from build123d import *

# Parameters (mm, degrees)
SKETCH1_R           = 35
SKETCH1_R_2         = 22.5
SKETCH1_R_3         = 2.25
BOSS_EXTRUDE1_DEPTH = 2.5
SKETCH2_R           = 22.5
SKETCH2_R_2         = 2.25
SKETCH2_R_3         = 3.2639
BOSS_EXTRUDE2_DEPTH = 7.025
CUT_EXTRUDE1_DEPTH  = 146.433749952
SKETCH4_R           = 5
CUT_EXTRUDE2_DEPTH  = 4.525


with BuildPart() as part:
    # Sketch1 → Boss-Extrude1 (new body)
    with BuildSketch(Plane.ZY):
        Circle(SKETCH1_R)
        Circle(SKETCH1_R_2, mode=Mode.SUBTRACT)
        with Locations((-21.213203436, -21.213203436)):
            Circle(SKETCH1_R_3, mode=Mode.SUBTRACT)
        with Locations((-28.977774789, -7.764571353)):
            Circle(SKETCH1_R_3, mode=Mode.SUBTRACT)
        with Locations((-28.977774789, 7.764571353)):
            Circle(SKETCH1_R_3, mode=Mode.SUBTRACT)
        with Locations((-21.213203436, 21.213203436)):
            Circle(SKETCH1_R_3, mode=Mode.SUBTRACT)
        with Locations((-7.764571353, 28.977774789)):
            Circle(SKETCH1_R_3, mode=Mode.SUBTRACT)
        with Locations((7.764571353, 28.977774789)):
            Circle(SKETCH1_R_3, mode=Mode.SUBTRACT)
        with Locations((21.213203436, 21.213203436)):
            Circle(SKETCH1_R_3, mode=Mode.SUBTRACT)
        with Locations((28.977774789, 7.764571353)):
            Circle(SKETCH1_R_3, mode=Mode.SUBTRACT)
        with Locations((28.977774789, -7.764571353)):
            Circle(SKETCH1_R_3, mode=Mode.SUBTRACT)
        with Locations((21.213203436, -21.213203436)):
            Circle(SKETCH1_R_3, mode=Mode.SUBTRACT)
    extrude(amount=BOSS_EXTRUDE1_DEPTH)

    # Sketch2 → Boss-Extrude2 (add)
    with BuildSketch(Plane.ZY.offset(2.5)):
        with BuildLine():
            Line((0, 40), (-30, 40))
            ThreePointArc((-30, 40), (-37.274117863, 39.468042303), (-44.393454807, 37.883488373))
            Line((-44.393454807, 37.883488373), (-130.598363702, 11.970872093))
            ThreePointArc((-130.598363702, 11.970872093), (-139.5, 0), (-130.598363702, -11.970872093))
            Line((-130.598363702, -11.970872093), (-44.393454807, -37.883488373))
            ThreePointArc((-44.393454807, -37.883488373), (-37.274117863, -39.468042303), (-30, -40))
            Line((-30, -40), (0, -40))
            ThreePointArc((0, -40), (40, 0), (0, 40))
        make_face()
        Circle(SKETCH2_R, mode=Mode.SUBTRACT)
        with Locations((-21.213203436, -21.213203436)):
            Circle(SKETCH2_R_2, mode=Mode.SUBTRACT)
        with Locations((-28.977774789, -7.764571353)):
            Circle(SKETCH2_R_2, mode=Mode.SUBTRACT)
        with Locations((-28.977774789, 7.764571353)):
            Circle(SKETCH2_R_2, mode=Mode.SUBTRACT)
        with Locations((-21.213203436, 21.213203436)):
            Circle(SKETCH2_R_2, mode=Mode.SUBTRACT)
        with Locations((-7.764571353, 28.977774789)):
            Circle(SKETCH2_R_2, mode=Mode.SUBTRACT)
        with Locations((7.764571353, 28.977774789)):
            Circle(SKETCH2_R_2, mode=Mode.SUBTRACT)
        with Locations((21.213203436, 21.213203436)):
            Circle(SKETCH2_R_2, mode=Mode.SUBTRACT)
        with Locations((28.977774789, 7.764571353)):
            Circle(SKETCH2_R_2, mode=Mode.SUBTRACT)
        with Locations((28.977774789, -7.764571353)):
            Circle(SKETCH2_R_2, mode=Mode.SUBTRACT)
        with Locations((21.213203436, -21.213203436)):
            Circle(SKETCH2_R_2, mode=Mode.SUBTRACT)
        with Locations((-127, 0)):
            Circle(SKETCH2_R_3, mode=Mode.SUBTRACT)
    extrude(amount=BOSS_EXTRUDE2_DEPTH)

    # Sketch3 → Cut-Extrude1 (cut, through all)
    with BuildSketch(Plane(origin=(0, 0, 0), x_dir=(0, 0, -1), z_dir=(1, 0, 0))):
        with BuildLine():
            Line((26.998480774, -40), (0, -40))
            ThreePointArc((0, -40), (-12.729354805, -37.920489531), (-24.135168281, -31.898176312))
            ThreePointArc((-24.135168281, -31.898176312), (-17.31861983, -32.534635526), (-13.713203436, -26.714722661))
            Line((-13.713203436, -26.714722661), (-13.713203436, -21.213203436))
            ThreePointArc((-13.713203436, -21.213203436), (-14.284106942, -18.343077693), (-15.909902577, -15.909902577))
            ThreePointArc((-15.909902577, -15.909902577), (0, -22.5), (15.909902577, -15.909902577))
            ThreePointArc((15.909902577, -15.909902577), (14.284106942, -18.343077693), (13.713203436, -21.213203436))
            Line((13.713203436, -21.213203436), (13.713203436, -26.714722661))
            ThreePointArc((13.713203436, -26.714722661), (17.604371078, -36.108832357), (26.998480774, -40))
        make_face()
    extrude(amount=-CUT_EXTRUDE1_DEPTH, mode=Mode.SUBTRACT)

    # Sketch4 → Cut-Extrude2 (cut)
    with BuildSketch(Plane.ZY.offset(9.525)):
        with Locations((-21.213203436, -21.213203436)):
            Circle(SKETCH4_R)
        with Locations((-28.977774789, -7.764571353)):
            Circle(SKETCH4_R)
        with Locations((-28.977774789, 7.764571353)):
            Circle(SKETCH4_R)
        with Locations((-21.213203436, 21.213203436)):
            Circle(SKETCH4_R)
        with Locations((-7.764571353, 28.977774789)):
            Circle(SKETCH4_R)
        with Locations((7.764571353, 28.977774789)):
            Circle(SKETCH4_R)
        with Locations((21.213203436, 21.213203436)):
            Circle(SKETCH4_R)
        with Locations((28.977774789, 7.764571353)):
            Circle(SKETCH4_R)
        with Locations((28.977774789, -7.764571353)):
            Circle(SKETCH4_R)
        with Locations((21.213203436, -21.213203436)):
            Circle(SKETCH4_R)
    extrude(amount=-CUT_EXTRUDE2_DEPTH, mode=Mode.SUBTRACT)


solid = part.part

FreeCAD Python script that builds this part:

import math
import FreeCAD as App
import Part
import Sketcher

V = App.Vector
Q = App.Units.Quantity

doc = App.newDocument("Part")
body = doc.addObject("PartDesign::Body", "Body")

# Sketch on YZ plane
sketch1 = body.newObject("Sketcher::SketchObject", "Sketch")
sketch1.AttachmentSupport = (doc.getObject("YZ_Plane"), [""])
sketch1.MapMode = "FlatFace"
sketch1.addGeometry([
    Part.Circle(V(0, 0, 0), V(0, 0, 1), 35),  # 0
    Part.Circle(V(-21.2, -21.2, 0), V(0, 0, 1), 2.2),  # 1
    Part.Circle(V(-7.8, -29, 0), V(0, 0, 1), 2.2),  # 2
    Part.Circle(V(0, 0, 0), V(0, 0, 1), 22.5),  # 3
    Part.Circle(V(-21.2, 21.2, 0), V(0, 0, 1), 2.2),  # 4
    Part.Circle(V(-7.8, 29, 0), V(0, 0, 1), 2.2),  # 5
    Part.Circle(V(7.8, -29, 0), V(0, 0, 1), 2.2),  # 6
    Part.Circle(V(21.2, -21.2, 0), V(0, 0, 1), 2.2),  # 7
    Part.Circle(V(29, -7.8, 0), V(0, 0, 1), 2.2),  # 8
    Part.Circle(V(7.8, 29, 0), V(0, 0, 1), 2.2),  # 9
    Part.Circle(V(29, 7.8, 0), V(0, 0, 1), 2.2),  # 10
    Part.Circle(V(21.2, 21.2, 0), V(0, 0, 1), 2.2),  # 11
], False)
sketch1.addConstraint([
    Sketcher.Constraint("Coincident", 0, 3, -1, 1),
    Sketcher.Constraint("Coincident", 3, 3, -1, 1),
    Sketcher.Constraint("Equal", 1, 2),
    Sketcher.Constraint("Equal", 2, 4),
    Sketcher.Constraint("Equal", 4, 5),
    Sketcher.Constraint("Equal", 5, 6),
    Sketcher.Constraint("Equal", 6, 7),
    Sketcher.Constraint("Equal", 7, 8),
    Sketcher.Constraint("Equal", 8, 9),
    Sketcher.Constraint("Equal", 9, 10),
    Sketcher.Constraint("Equal", 10, 11),
    Sketcher.Constraint("Symmetric", 5, 3, 6, 3, -1, 1),
    Sketcher.Constraint("Symmetric", 4, 3, 7, 3, -1, 1),
    Sketcher.Constraint("Symmetric", 2, 3, 9, 3, -1, 1),
    Sketcher.Constraint("Symmetric", 1, 3, 11, 3, -1, 1),
    Sketcher.Constraint("Symmetric", 2, 3, 6, 3, -2),
    Sketcher.Constraint("Symmetric", 1, 3, 7, 3, -2),
    Sketcher.Constraint("Symmetric", 8, 3, 10, 3, -1),
    Sketcher.Constraint("Diameter", 0, Q("70 mm")),
    Sketcher.Constraint("Diameter", 3, Q("45 mm")),
    Sketcher.Constraint("Diameter", 1, Q("4.5 mm")),
    Sketcher.Constraint("DistanceX", 2, 3, -1, 1, Q("7.764571 mm")),
    Sketcher.Constraint("DistanceY", 8, 3, -1, 1, Q("7.764571 mm")),
    Sketcher.Constraint("DistanceY", 2, 3, 1, 3, Q("7.764571 mm")),
    Sketcher.Constraint("DistanceY", 2, 3, 4, 3, Q("50.190978 mm")),
    Sketcher.Constraint("DistanceX", 7, 3, 8, 3, Q("7.764571 mm")),
    Sketcher.Constraint("DistanceX", 1, 3, -1, 1, Q("21.213203 mm")),
])
pad1 = body.newObject("PartDesign::Pad", "Pad")
pad1.Profile = sketch1
pad1.Length = 2.5
pad1.Reversed = True

# Sketch on YZ plane
sketch2 = body.newObject("Sketcher::SketchObject", "Sketch001")
sketch2.AttachmentSupport = (doc.getObject("YZ_Plane"), [""])
sketch2.MapMode = "FlatFace"
sketch2.AttachmentOffset = App.Placement(V(0, 0, -2.5), App.Rotation())
sketch2.addGeometry([
    Part.LineSegment(V(40, 0, 0), V(40, -30, 0)),  # 0
    Part.ArcOfCircle(Part.Circle(V(-10, -30, 0), V(0, 0, 1), 50), math.radians(-16.73), math.radians(0)),  # 1
    Part.LineSegment(V(37.9, -44.4, 0), V(12, -130.6, 0)),  # 2
    Part.ArcOfCircle(Part.Circle(V(0, -127, 0), V(0, 0, 1), 12.5), math.radians(-163), math.radians(-17)),  # 3
    Part.LineSegment(V(-12, -130.6, 0), V(-37.9, -44.4, 0)),  # 4
    Part.ArcOfCircle(Part.Circle(V(10, -30, 0), V(0, 0, 1), 50), math.radians(-180), math.radians(-163.27)),  # 5
    Part.LineSegment(V(-40, -30, 0), V(-40, 0, 0)),  # 6
    Part.ArcOfCircle(Part.Circle(V(0, 0, 0), V(0, 0, 1), 40), math.radians(0), math.radians(180)),  # 7
    Part.Circle(V(0, -127, 0), V(0, 0, 1), 3.3),  # 8
    Part.Circle(V(-21.2, -21.2, 0), V(0, 0, 1), 2.2),  # 9
    Part.Circle(V(-21.2, 21.2, 0), V(0, 0, 1), 2.2),  # 10
    Part.Circle(V(-7.8, -29, 0), V(0, 0, 1), 2.2),  # 11
    Part.Circle(V(-7.8, 29, 0), V(0, 0, 1), 2.2),  # 12
    Part.Circle(V(0, 0, 0), V(0, 0, 1), 22.5),  # 13
    Part.Circle(V(7.8, -29, 0), V(0, 0, 1), 2.2),  # 14
    Part.Circle(V(7.8, 29, 0), V(0, 0, 1), 2.2),  # 15
    Part.Circle(V(21.2, -21.2, 0), V(0, 0, 1), 2.2),  # 16
    Part.Circle(V(21.2, 21.2, 0), V(0, 0, 1), 2.2),  # 17
    Part.Circle(V(29, -7.8, 0), V(0, 0, 1), 2.2),  # 18
    Part.Circle(V(29, 7.8, 0), V(0, 0, 1), 2.2),  # 19
], False)
sketch2.addConstraint([
    Sketcher.Constraint("Tangent", 0, 2, 1, 2),
    Sketcher.Constraint("Tangent", 1, 1, 2, 1),
    Sketcher.Constraint("Tangent", 2, 2, 3, 2),
    Sketcher.Constraint("Tangent", 3, 1, 4, 1),
    Sketcher.Constraint("Tangent", 4, 2, 5, 2),
    Sketcher.Constraint("Tangent", 5, 1, 6, 1),
    Sketcher.Constraint("Tangent", 6, 2, 7, 2),
    Sketcher.Constraint("Tangent", 7, 1, 0, 1),
    Sketcher.Constraint("Vertical", 0),
    Sketcher.Constraint("Vertical", 6),
    Sketcher.Constraint("Coincident", 7, 3, -1, 1),
    Sketcher.Constraint("Coincident", 13, 3, -1, 1),
    Sketcher.Constraint("Coincident", 8, 3, 3, 3),
    Sketcher.Constraint("Equal", 1, 5),
    Sketcher.Constraint("Equal", 9, 10),
    Sketcher.Constraint("Equal", 10, 11),
    Sketcher.Constraint("Equal", 11, 12),
    Sketcher.Constraint("Equal", 12, 14),
    Sketcher.Constraint("Equal", 14, 15),
    Sketcher.Constraint("Equal", 15, 16),
    Sketcher.Constraint("Equal", 16, 17),
    Sketcher.Constraint("Equal", 17, 18),
    Sketcher.Constraint("Equal", 18, 19),
    Sketcher.Constraint("Symmetric", 12, 3, 14, 3, -1, 1),
    Sketcher.Constraint("Symmetric", 11, 3, 15, 3, -1, 1),
    Sketcher.Constraint("Symmetric", 10, 3, 16, 3, -1, 1),
    Sketcher.Constraint("Symmetric", 9, 3, 17, 3, -1, 1),
    Sketcher.Constraint("Symmetric", 11, 3, 14, 3, -2),
    Sketcher.Constraint("Symmetric", 9, 3, 16, 3, -2),
    Sketcher.Constraint("Symmetric", 2, 2, 3, 1, -2),
    Sketcher.Constraint("Symmetric", 18, 3, 19, 3, -1),
    Sketcher.Constraint("Diameter", 13, Q("45 mm")),
    Sketcher.Constraint("Radius", 1, Q("50 mm")),
    Sketcher.Constraint("Radius", 7, Q("40 mm")),
    Sketcher.Constraint("Diameter", 9, Q("4.5 mm")),
    Sketcher.Constraint("Radius", 3, Q("12.5 mm")),
    Sketcher.Constraint("DistanceY", 0, 2, 0, 1, Q("30 mm")),
    Sketcher.Constraint("DistanceY", 3, 3, -1, 1, Q("127 mm")),
    Sketcher.Constraint("Diameter", 8, Q("6.5278 mm")),
    Sketcher.Constraint("DistanceX", 14, 3, 2, 2, Q("4.206301 mm")),
    Sketcher.Constraint("DistanceY", 18, 3, -1, 1, Q("7.764571 mm")),
    Sketcher.Constraint("DistanceY", 11, 3, 9, 3, Q("7.764571 mm")),
    Sketcher.Constraint("DistanceY", 11, 3, 10, 3, Q("50.190978 mm")),
    Sketcher.Constraint("DistanceX", 16, 3, 18, 3, Q("7.764571 mm")),
    Sketcher.Constraint("DistanceX", 9, 3, -1, 1, Q("21.213203 mm")),
])
pad2 = body.newObject("PartDesign::Pad", "Pad001")
pad2.Profile = sketch2
pad2.Length = 7.025
pad2.Reversed = True

# Sketch on YZ plane
sketch3 = body.newObject("Sketcher::SketchObject", "Sketch002")
sketch3.AttachmentSupport = (doc.getObject("YZ_Plane"), [""])
sketch3.MapMode = "FlatFace"
sketch3.addGeometry([
    Part.LineSegment(V(-40, 0, 0), V(-40, -27, 0)),  # 0
    Part.ArcOfCircle(Part.Circle(V(-27, -27, 0), V(0, 0, 1), 13), math.radians(90), math.radians(180)),  # 1
    Part.LineSegment(V(-27, -14, 0), V(-21, -14, 0)),  # 2
    Part.ArcOfCircle(Part.Circle(V(-21, -21, 0), V(0, 0, 1), 7), math.radians(45), math.radians(90)),  # 3
    Part.ArcOfCircle(Part.Circle(V(0, 0, 0), V(0, 0, 1), 23), math.radians(135), math.radians(225)),  # 4
    Part.ArcOfCircle(Part.Circle(V(-21, 21, 0), V(0, 0, 1), 7), math.radians(-90), math.radians(-45)),  # 5
    Part.LineSegment(V(-21, 14, 0), V(-27, 14, 0)),  # 6
    Part.ArcOfCircle(Part.Circle(V(-27, 20, 0), V(0, 0, 1), 6), math.radians(143), math.radians(270)),  # 7
    Part.ArcOfCircle(Part.Circle(V(0, 0, 0), V(0, 0, 1), 40), math.radians(143), math.radians(180)),  # 8
], False)
sketch3.addConstraint([
    Sketcher.Constraint("Tangent", 0, 2, 1, 2),
    Sketcher.Constraint("Tangent", 1, 1, 2, 1),
    Sketcher.Constraint("Tangent", 2, 2, 3, 2),
    Sketcher.Constraint("Tangent", 3, 1, 4, 2),
    Sketcher.Constraint("Tangent", 4, 1, 5, 2),
    Sketcher.Constraint("Tangent", 5, 1, 6, 1),
    Sketcher.Constraint("Tangent", 6, 2, 7, 2),
    Sketcher.Constraint("Tangent", 7, 1, 8, 1),
    Sketcher.Constraint("Tangent", 8, 2, 0, 1),
    Sketcher.Constraint("Vertical", 0),
    Sketcher.Constraint("Horizontal", 2),
    Sketcher.Constraint("Horizontal", 6),
    Sketcher.Constraint("Coincident", 4, 3, -1, 1),
    Sketcher.Constraint("Coincident", 8, 3, -1, 1),
    Sketcher.Constraint("Equal", 3, 5),
    Sketcher.Constraint("Symmetric", 1, 1, 6, 2, -1),
    Sketcher.Constraint("Radius", 8, Q("40 mm")),
    Sketcher.Constraint("Radius", 3, Q("7.5 mm")),
    Sketcher.Constraint("Radius", 4, Q("22.5 mm")),
    Sketcher.Constraint("Radius", 7, Q("6.5 mm")),
    Sketcher.Constraint("Radius", 1, Q("13.285277 mm")),
])
pocket1 = body.newObject("PartDesign::Pocket", "Pocket")
pocket1.Profile = sketch3
pocket1.Type = "ThroughAll"

# Sketch on YZ plane
sketch4 = body.newObject("Sketcher::SketchObject", "Sketch003")
sketch4.AttachmentSupport = (doc.getObject("YZ_Plane"), [""])
sketch4.MapMode = "FlatFace"
sketch4.AttachmentOffset = App.Placement(V(0, 0, -9.525), App.Rotation())
sketch4.addGeometry([
    Part.Circle(V(-21, -21, 0), V(0, 0, 1), 5),  # 0
    Part.Circle(V(-8, -29, 0), V(0, 0, 1), 5),  # 1
    Part.Circle(V(8, -29, 0), V(0, 0, 1), 5),  # 2
    Part.Circle(V(21, -21, 0), V(0, 0, 1), 5),  # 3
    Part.Circle(V(29, -8, 0), V(0, 0, 1), 5),  # 4
    Part.Circle(V(29, 8, 0), V(0, 0, 1), 5),  # 5
    Part.Circle(V(21, 21, 0), V(0, 0, 1), 5),  # 6
    Part.Circle(V(8, 29, 0), V(0, 0, 1), 5),  # 7
    Part.Circle(V(-8, 29, 0), V(0, 0, 1), 5),  # 8
    Part.Circle(V(-21, 21, 0), V(0, 0, 1), 5),  # 9
], False)
sketch4.addConstraint([
    Sketcher.Constraint("Equal", 0, 1),
    Sketcher.Constraint("Equal", 1, 2),
    Sketcher.Constraint("Equal", 2, 3),
    Sketcher.Constraint("Equal", 3, 4),
    Sketcher.Constraint("Equal", 4, 5),
    Sketcher.Constraint("Equal", 5, 6),
    Sketcher.Constraint("Equal", 6, 7),
    Sketcher.Constraint("Equal", 7, 8),
    Sketcher.Constraint("Equal", 8, 9),
    Sketcher.Constraint("Symmetric", 0, 3, 6, 3, -1, 1),
    Sketcher.Constraint("Symmetric", 1, 3, 7, 3, -1, 1),
    Sketcher.Constraint("Symmetric", 2, 3, 8, 3, -1, 1),
    Sketcher.Constraint("Symmetric", 3, 3, 9, 3, -1, 1),
    Sketcher.Constraint("Symmetric", 1, 3, 2, 3, -2),
    Sketcher.Constraint("Symmetric", 0, 3, 3, 3, -2),
    Sketcher.Constraint("Symmetric", 4, 3, 5, 3, -1),
    Sketcher.Constraint("Diameter", 0, Q("10 mm")),
    Sketcher.Constraint("DistanceX", 1, 3, -1, 1, Q("7.764571 mm")),
    Sketcher.Constraint("DistanceY", 4, 3, -1, 1, Q("7.764571 mm")),
    Sketcher.Constraint("DistanceY", 1, 3, 0, 3, Q("7.764571 mm")),
    Sketcher.Constraint("DistanceX", 3, 3, 4, 3, Q("7.764571 mm")),
    Sketcher.Constraint("DistanceX", 0, 3, 4, 3, Q("50.190978 mm")),
    Sketcher.Constraint("DistanceY", 2, 3, 6, 3, Q("50.190978 mm")),
])
pocket2 = body.newObject("PartDesign::Pocket", "Pocket001")
pocket2.Profile = sketch4
pocket2.Length = 4.525
pocket2.Reversed = True

doc.recompute()
